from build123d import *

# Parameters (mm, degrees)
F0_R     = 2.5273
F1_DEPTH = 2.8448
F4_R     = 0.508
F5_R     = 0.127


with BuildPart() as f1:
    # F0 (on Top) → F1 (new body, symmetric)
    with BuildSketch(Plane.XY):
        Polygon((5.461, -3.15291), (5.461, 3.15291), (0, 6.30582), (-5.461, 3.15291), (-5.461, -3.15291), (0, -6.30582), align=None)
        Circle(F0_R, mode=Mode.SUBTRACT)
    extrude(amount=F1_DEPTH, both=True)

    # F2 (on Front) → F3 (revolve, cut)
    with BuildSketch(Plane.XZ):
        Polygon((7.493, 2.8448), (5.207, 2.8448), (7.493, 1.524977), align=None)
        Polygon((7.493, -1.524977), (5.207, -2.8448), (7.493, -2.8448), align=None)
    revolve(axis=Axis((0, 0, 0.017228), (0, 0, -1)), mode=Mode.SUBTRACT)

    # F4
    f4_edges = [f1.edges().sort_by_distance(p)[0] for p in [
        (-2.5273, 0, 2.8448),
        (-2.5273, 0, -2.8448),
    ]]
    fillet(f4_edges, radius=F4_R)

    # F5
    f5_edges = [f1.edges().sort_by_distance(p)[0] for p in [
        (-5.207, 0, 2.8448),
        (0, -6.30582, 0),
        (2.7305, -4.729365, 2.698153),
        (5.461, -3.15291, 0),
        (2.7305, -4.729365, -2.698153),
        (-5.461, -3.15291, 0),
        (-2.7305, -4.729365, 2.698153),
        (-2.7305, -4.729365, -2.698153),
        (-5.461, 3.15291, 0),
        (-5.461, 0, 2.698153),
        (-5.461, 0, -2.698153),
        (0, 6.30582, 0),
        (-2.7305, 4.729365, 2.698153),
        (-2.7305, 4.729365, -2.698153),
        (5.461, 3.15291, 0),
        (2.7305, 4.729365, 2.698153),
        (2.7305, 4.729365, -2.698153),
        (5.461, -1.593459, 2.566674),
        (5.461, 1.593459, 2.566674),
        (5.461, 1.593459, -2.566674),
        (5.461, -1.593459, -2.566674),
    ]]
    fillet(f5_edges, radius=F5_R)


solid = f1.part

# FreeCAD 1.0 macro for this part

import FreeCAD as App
import Part
import Sketcher
Q = App.Units.Quantity


def edges_at(feature, points):
    """Names of the edges that pass closest to the given points."""
    edges = feature.Shape.Edges
    near = lambda p: min(range(len(edges)), key=lambda i: edges[i].distToShape(Part.Vertex(*p))[0])
    return sorted({f"Edge{near(p) + 1}" for p in points})

doc = App.newDocument("Part")
params = doc.addObject("Spreadsheet::Sheet", "Params")
for row, (alias, value) in enumerate([
    ("sketch1_diameter", "0.199 in"),
    ("pad1_length", "0.224 in"),
    ("sketch2_width", "0.09 in"),
    ("groove_angle", "360 deg"),
    ("fillet_radius", "0.02 in"),
    ("fillet2_radius", "0.005 in"),
], start=1):
    params.set(f"A{row}", alias)
    params.set(f"B{row}", "=" + value)
    params.setAlias(f"B{row}", alias)

body = doc.addObject("PartDesign::Body", "Body")

sketch1 = doc.addObject("Sketcher::SketchObject", "Sketch")
body.addObject(sketch1)
sketch1.AttachmentSupport = (doc.XY_Plane, [""])
sketch1.MapMode = "FlatFace"
sketch1.addGeometry([
    Part.LineSegment(App.Vector(5.5, -3.2, 0), App.Vector(5.5, 3.2, 0)),
    Part.LineSegment(App.Vector(5.5, 3.2, 0), App.Vector(0, 6.3, 0)),
    Part.LineSegment(App.Vector(0, 6.3, 0), App.Vector(-5.5, 3.2, 0)),
    Part.LineSegment(App.Vector(-5.5, 3.2, 0), App.Vector(-5.5, -3.2, 0)),
    Part.LineSegment(App.Vector(-5.5, -3.2, 0), App.Vector(0, -6.3, 0)),
    Part.LineSegment(App.Vector(0, -6.3, 0), App.Vector(5.5, -3.2, 0)),
    Part.Circle(App.Vector(0, 0, 0), App.Vector(0, 0, 1), 2.5),
], False)
sketch1.addConstraint([
    Sketcher.Constraint("Coincident", 0, 2, 1, 1),
    Sketcher.Constraint("Coincident", 1, 2, 2, 1),
    Sketcher.Constraint("Coincident", 2, 2, 3, 1),
    Sketcher.Constraint("Coincident", 3, 2, 4, 1),
    Sketcher.Constraint("Coincident", 4, 2, 5, 1),
    Sketcher.Constraint("Coincident", 5, 2, 0, 1),
    Sketcher.Constraint("Vertical", 0),
    Sketcher.Constraint("Vertical", 3),
    Sketcher.Constraint("Coincident", 6, 3, -1, 1),
    Sketcher.Constraint("Symmetric", 0, 2, 3, 2, -1, 1),
    Sketcher.Constraint("Symmetric", 1, 2, 4, 2, -1, 1),
    Sketcher.Constraint("PointOnObject", 1, 2, -2),
    Sketcher.Constraint("Parallel", 2, 5),
    Sketcher.Constraint("Horizontal", 0, 2, 2, 2),
    Sketcher.Constraint("Diameter", 6, Q("0.199 in")),
    Sketcher.Constraint("Angle", 1, Q("149.999999 deg")),
    Sketcher.Constraint("DistanceX", 2, 2, 0, 2, Q("0.43 in")),
    Sketcher.Constraint("DistanceY", 0, 1, 0, 2, 6.30582),
])
sketch1.setExpression("Constraints[14]", "Params.sketch1_diameter")
pad1 = doc.addObject("PartDesign::Pad", "Pad")
body.addObject(pad1)
pad1.Profile = sketch1
pad1.setExpression("Length", "Params.pad1_length")
pad1.Midplane = True

sketch2 = doc.addObject("Sketcher::SketchObject", "Sketch001")
body.addObject(sketch2)
sketch2.AttachmentSupport = (doc.XZ_Plane, [""])
sketch2.MapMode = "FlatFace"
sketch2.addGeometry([
    Part.LineSegment(App.Vector(7.5, 2.8, 0), App.Vector(5.2, 2.8, 0)),
    Part.LineSegment(App.Vector(5.2, 2.8, 0), App.Vector(7.5, 1.5, 0)),
    Part.LineSegment(App.Vector(7.5, 1.5, 0), App.Vector(7.5, 2.8, 0)),
    Part.LineSegment(App.Vector(7.5, -1.5, 0), App.Vector(5.2, -2.8, 0)),
    Part.LineSegment(App.Vector(5.2, -2.8, 0), App.Vector(7.5, -2.8, 0)),
    Part.LineSegment(App.Vector(7.5, -2.8, 0), App.Vector(7.5, -1.5, 0)),
], False)
sketch2.addConstraint([
    Sketcher.Constraint("Coincident", 0, 2, 1, 1),
    Sketcher.Constraint("Coincident", 1, 2, 2, 1),
    Sketcher.Constraint("Coincident", 2, 2, 0, 1),
    Sketcher.Constraint("Coincident", 3, 2, 4, 1),
    Sketcher.Constraint("Coincident", 4, 2, 5, 1),
    Sketcher.Constraint("Coincident", 5, 2, 3, 1),
    Sketcher.Constraint("Horizontal", 0),
    Sketcher.Constraint("Vertical", 2),
    Sketcher.Constraint("Horizontal", 4),
    Sketcher.Constraint("Vertical", 5),
    Sketcher.Constraint("Symmetric", 0, 2, 3, 2, -1),
    Sketcher.Constraint("Symmetric", 1, 2, 5, 2, -1),
    Sketcher.Constraint("Angle", 1, Q("-30.000005 deg")),
    Sketcher.Constraint("DistanceX", 0, 2, 0, 1, Q("0.09 in")),
    Sketcher.Constraint("DistanceX", -1, 1, 0, 2, Q("0.205 in")),
    Sketcher.Constraint("DistanceY", -1, 1, 0, 2, Q("0.112 in")),
])
sketch2.setExpression("Constraints[13]", "Params.sketch2_width")
groove = doc.addObject("PartDesign::Groove", "Groove")
body.addObject(groove)
groove.Profile = sketch2
groove.ReferenceAxis = (sketch2, ["V_Axis"])
groove.setExpression("Angle", "Params.groove_angle")
doc.recompute()

fillet = doc.addObject("PartDesign::Fillet", "Fillet")
body.addObject(fillet)
fillet.Base = (groove, edges_at(groove, [(-2.527, 0, 2.845), (-2.527, 0, -2.845)]))
fillet.setExpression("Radius", "Params.fillet_radius")
doc.recompute()

fillet2 = doc.addObject("PartDesign::Fillet", "Fillet001")
body.addObject(fillet2)
fillet2.Base = (fillet, edges_at(fillet, [
    (-5.207, 0, 2.845),
    (0, -6.306, 0),
    (2.73, -4.729, 2.698),
    (5.461, -3.153, 0),
    (2.73, -4.729, -2.698),
    (-5.461, -3.153, 0),
    (-2.73, -4.729, 2.698),
    (-2.73, -4.729, -2.698),
    (-5.461, 3.153, 0),
    (-5.461, 0, 2.698),
    (-5.461, 0, -2.698),
    (0, 6.306, 0),
    (-2.73, 4.729, 2.698),
    (-2.73, 4.729, -2.698),
    (5.461, 3.153, 0),
    (2.73, 4.729, 2.698),
    (2.73, 4.729, -2.698),
    (5.461, -1.593, 2.567),
    (5.461, 1.593, 2.567),
    (5.461, 1.593, -2.567),
    (5.461, -1.593, -2.567),
]))
fillet2.setExpression("Radius", "Params.fillet2_radius")

doc.recompute()
